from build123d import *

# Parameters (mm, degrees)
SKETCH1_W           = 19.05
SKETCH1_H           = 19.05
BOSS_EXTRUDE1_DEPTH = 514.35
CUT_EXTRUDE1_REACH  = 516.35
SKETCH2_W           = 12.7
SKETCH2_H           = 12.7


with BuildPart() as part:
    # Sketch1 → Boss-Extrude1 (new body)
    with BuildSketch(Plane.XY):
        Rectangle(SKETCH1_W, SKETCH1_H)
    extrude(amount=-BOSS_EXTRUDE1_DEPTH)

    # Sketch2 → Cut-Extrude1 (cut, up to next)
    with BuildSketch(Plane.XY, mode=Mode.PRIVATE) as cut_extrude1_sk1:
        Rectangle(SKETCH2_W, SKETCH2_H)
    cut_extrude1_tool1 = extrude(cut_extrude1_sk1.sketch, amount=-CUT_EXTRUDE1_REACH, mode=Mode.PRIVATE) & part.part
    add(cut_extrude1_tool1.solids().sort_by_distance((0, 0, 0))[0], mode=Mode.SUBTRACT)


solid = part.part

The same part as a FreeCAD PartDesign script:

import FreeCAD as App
import Part
import Sketcher
from FreeCAD import Vector
Q = App.Units.Quantity

doc = App.newDocument("Part")
body = doc.addObject("PartDesign::Body", "Body")

sketch1 = body.newObject("Sketcher::SketchObject", "Sketch")
sketch1.AttachmentSupport = (doc.getObject("XY_Plane"), [""])
sketch1.MapMode = "FlatFace"
sketch1.addGeometry(Part.LineSegment(Vector(-10, 10, 0), Vector(-10, -10, 0)), False)
sketch1.addGeometry(Part.LineSegment(Vector(-10, -10, 0), Vector(10, -10, 0)), False)
sketch1.addGeometry(Part.LineSegment(Vector(10, -10, 0), Vector(10, 10, 0)), False)
sketch1.addGeometry(Part.LineSegment(Vector(10, 10, 0), Vector(-10, 10, 0)), False)
sketch1.addConstraint(Sketcher.Constraint("Coincident", 0, 2, 1, 1))
sketch1.addConstraint(Sketcher.Constraint("Coincident", 1, 2, 2, 1))
sketch1.addConstraint(Sketcher.Constraint("Coincident", 2, 2, 3, 1))
sketch1.addConstraint(Sketcher.Constraint("Coincident", 3, 2, 0, 1))
sketch1.addConstraint(Sketcher.Constraint("Vertical", 0))
sketch1.addConstraint(Sketcher.Constraint("Horizontal", 1))
sketch1.addConstraint(Sketcher.Constraint("Vertical", 2))
sketch1.addConstraint(Sketcher.Constraint("Horizontal", 3))
sketch1.addConstraint(Sketcher.Constraint("Symmetric", 0, 2, 2, 2, -1, 1))
sketch1.addConstraint(Sketcher.Constraint("Equal", 3, 0))
sketch1.addConstraint(Sketcher.Constraint("DistanceX", 1, 1, 1, 2, Q("0.75 in")))
pad1 = body.newObject("PartDesign::Pad", "Pad")
pad1.Profile = sketch1
pad1.Length = Q("20.25 in")
pad1.Reversed = True

sketch2 = body.newObject("Sketcher::SketchObject", "Sketch001")
sketch2.AttachmentSupport = (doc.getObject("XY_Plane"), [""])
sketch2.MapMode = "FlatFace"
sketch2.addGeometry(Part.LineSegment(Vector(-6, 6, 0), Vector(-6, -6, 0)), False)
sketch2.addGeometry(Part.LineSegment(Vector(-6, -6, 0), Vector(6, -6, 0)), False)
sketch2.addGeometry(Part.LineSegment(Vector(6, -6, 0), Vector(6, 6, 0)), False)
sketch2.addGeometry(Part.LineSegment(Vector(6, 6, 0), Vector(-6, 6, 0)), False)
sketch2.addConstraint(Sketcher.Constraint("Coincident", 0, 2, 1, 1))
sketch2.addConstraint(Sketcher.Constraint("Coincident", 1, 2, 2, 1))
sketch2.addConstraint(Sketcher.Constraint("Coincident", 2, 2, 3, 1))
sketch2.addConstraint(Sketcher.Constraint("Coincident", 3, 2, 0, 1))
sketch2.addConstraint(Sketcher.Constraint("Vertical", 0))
sketch2.addConstraint(Sketcher.Constraint("Horizontal", 1))
sketch2.addConstraint(Sketcher.Constraint("Vertical", 2))
sketch2.addConstraint(Sketcher.Constraint("Horizontal", 3))
sketch2.addConstraint(Sketcher.Constraint("Symmetric", 0, 2, 2, 2, -1, 1))
sketch2.addConstraint(Sketcher.Constraint("Equal", 3, 0))
sketch2.addConstraint(Sketcher.Constraint("DistanceX", 1, 1, 1, 2, Q("0.5 in")))
pocket1 = body.newObject("PartDesign::Pocket", "Pocket")
pocket1.Profile = sketch2
pocket1.Type = "UpToFirst"

doc.recompute()
